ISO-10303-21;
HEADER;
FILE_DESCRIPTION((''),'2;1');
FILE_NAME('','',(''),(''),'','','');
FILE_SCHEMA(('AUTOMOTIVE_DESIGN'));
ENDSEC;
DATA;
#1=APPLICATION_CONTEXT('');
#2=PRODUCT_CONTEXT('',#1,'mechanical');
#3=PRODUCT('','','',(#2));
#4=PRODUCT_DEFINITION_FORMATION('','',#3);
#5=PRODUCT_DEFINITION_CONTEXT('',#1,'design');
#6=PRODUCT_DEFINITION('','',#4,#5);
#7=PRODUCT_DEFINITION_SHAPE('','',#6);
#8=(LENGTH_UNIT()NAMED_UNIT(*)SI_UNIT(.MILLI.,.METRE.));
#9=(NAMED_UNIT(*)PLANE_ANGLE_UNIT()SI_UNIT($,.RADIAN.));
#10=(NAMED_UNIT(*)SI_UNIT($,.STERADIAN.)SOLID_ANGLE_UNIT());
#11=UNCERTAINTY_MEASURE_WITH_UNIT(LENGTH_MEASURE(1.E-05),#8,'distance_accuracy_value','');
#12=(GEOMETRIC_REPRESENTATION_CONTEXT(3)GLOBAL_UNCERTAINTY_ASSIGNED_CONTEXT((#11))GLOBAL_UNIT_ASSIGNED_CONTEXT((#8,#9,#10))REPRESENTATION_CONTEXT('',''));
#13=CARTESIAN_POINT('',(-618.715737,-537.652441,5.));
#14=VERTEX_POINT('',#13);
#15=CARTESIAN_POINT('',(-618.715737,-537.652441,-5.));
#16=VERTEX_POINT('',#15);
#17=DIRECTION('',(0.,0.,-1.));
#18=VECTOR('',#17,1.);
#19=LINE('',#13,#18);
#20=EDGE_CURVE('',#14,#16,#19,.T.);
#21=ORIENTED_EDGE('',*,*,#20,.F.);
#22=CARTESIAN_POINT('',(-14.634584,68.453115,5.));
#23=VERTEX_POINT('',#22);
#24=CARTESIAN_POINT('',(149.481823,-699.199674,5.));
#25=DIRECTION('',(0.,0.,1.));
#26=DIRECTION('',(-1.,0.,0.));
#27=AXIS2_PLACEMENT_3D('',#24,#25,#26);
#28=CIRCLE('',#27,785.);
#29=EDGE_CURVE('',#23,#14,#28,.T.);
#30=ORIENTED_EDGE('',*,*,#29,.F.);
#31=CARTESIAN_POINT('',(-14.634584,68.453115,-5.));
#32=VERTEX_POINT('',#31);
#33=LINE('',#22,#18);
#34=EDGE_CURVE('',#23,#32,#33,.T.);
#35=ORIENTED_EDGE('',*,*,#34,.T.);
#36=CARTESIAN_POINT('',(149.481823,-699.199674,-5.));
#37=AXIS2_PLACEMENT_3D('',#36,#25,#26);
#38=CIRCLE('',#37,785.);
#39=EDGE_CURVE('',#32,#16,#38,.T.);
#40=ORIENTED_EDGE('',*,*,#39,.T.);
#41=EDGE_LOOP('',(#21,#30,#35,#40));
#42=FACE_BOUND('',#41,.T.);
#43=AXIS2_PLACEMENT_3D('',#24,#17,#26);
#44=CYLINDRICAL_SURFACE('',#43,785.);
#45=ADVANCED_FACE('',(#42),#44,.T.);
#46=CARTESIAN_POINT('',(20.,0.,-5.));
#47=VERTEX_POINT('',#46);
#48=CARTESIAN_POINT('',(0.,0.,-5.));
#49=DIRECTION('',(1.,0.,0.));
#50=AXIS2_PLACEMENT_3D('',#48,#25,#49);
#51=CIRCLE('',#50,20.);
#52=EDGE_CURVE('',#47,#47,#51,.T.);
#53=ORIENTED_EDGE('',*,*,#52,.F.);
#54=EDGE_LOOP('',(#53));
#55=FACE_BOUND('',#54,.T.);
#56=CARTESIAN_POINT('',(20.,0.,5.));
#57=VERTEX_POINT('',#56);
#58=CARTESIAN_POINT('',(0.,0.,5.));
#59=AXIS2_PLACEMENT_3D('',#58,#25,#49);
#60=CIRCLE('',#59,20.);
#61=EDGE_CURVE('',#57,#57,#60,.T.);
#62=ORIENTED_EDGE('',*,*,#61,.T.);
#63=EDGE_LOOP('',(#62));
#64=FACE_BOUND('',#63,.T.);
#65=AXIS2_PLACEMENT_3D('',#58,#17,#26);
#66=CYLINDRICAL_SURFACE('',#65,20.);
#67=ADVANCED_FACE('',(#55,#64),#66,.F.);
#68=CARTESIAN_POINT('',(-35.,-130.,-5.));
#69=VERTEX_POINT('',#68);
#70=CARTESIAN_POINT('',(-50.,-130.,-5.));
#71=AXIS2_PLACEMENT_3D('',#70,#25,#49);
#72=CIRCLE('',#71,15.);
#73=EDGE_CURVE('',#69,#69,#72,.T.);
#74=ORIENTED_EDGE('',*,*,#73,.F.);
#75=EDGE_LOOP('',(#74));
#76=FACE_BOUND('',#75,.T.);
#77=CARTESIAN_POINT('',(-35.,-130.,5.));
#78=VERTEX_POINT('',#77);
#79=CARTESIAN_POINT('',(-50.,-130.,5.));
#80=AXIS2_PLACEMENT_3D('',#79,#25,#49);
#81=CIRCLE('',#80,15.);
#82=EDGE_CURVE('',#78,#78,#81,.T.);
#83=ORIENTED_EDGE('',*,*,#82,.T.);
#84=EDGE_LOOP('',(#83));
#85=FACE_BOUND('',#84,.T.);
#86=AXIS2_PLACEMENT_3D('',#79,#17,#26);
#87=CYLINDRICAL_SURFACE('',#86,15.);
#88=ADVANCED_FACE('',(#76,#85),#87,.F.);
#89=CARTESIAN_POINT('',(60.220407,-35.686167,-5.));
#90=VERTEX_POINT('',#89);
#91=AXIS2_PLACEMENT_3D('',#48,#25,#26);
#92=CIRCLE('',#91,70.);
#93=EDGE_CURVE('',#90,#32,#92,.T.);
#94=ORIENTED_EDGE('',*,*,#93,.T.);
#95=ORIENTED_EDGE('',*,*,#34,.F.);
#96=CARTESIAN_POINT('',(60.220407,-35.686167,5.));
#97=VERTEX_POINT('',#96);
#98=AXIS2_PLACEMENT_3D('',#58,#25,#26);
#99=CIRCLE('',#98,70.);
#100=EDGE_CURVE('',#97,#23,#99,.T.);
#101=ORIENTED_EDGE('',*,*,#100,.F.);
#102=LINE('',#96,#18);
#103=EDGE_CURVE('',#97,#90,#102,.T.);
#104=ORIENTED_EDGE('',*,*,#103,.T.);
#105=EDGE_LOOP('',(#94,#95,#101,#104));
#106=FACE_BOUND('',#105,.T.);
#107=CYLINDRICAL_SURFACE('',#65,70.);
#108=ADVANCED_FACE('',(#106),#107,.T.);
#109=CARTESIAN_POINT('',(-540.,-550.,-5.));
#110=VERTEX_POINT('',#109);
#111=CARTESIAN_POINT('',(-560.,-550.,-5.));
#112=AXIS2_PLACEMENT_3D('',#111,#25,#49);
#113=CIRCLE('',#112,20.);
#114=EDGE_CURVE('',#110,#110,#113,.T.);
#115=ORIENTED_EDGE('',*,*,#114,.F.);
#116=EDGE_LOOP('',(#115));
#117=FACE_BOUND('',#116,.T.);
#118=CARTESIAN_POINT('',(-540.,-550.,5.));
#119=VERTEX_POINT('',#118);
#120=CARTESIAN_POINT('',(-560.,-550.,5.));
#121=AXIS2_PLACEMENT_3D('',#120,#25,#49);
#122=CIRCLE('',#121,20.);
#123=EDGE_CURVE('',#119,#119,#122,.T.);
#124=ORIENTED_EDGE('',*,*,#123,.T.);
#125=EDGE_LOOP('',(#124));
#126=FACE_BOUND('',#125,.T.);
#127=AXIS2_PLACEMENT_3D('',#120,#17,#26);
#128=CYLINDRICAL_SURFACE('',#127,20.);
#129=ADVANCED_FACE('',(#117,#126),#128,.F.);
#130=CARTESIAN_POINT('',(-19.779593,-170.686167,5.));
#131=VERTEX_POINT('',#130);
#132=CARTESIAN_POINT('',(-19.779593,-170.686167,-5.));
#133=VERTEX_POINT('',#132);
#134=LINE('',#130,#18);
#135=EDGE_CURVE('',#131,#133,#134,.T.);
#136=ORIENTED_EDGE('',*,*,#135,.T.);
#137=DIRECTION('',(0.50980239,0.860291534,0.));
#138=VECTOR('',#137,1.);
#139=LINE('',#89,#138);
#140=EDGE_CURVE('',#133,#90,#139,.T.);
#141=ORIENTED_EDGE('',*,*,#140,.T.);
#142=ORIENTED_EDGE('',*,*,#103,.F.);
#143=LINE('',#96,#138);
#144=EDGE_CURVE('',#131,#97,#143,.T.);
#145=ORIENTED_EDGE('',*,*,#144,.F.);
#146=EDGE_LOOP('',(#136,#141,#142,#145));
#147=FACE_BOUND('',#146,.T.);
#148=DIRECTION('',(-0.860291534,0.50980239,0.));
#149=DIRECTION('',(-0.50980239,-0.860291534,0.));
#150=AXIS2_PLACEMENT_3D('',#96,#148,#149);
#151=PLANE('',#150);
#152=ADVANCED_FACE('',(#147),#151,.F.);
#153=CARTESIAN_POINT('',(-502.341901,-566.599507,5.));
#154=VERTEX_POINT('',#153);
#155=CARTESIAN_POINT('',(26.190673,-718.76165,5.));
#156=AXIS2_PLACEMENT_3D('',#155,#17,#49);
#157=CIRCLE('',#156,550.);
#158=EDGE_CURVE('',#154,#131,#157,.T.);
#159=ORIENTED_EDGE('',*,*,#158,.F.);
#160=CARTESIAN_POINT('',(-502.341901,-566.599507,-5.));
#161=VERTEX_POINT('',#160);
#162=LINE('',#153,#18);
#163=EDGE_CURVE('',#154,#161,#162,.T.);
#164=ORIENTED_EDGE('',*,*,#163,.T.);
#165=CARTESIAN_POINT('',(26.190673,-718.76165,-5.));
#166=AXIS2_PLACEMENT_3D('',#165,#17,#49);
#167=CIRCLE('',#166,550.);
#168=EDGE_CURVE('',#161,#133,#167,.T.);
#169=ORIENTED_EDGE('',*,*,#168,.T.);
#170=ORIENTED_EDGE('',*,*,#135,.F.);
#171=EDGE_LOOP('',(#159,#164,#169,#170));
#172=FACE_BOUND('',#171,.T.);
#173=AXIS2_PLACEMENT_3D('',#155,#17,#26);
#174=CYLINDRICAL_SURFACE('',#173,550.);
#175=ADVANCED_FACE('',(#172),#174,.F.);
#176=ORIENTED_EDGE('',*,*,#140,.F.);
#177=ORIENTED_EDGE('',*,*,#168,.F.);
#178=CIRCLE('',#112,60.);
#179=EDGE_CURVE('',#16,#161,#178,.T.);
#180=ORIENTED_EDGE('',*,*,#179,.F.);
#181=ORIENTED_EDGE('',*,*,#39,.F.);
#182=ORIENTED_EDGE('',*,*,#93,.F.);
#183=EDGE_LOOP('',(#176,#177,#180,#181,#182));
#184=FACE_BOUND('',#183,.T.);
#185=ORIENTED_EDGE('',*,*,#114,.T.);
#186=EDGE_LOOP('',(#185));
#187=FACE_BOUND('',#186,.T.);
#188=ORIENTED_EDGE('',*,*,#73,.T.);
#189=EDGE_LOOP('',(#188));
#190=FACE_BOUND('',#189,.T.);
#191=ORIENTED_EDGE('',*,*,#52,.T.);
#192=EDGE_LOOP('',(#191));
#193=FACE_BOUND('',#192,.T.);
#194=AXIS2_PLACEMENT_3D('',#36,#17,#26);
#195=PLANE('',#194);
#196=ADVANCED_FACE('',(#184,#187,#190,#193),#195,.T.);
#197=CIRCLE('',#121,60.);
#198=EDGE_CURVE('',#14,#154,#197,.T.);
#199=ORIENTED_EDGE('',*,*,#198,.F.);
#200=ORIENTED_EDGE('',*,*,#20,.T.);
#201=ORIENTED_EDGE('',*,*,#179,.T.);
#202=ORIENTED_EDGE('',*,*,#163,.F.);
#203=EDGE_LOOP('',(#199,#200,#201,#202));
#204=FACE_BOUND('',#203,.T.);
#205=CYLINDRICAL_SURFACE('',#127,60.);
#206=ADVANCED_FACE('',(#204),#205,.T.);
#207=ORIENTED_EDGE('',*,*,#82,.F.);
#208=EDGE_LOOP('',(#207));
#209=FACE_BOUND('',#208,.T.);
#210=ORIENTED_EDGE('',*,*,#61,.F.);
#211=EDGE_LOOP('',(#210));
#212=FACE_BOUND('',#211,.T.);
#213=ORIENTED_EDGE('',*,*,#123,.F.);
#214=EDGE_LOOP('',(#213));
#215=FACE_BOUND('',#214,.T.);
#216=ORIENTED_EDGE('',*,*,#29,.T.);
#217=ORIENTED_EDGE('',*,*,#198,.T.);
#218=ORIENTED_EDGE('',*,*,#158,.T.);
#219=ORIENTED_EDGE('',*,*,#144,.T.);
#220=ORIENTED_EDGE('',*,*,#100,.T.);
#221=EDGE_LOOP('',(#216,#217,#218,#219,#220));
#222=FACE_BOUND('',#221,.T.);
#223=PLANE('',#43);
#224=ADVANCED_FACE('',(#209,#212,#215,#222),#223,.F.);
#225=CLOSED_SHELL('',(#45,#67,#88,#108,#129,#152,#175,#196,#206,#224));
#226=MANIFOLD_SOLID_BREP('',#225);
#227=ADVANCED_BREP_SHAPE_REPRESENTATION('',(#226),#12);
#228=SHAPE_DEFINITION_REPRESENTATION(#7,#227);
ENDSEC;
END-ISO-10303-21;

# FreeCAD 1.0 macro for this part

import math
import FreeCAD as App
import Part
import Sketcher

doc = App.newDocument("Part")
params = doc.addObject("Spreadsheet::Sheet", "Params")
for row, (alias, value) in enumerate([
    ("sketch1_diameter", "40 mm"),
    ("sketch1_diameter2", "30 mm"),
    ("sketch1_radius", "70 mm"),
    ("sketch1_radius2", "785 mm"),
    ("sketch1_radius3", "60 mm"),
    ("pad1_length", "10 mm"),
], start=1):
    params.set(f"A{row}", alias)
    params.set(f"B{row}", "=" + value)
    params.setAlias(f"B{row}", alias)

body = doc.addObject("PartDesign::Body", "Body")

# Sketch on XY plane
sketch1 = body.newObject("Sketcher::SketchObject", "Sketch")
sketch1.AttachmentSupport = (doc.getObject("XY_Plane"), [""])
sketch1.MapMode = "FlatFace"
sketch1.addGeometry([
    Part.LineSegment(App.Vector(-20, -171, 0), App.Vector(60, -36, 0)),  # 0
    Part.ArcOfCircle(Part.Circle(App.Vector(0, 0, 0), App.Vector(0, 0, 1), 70), math.radians(-31), math.radians(102)),  # 1
    Part.ArcOfCircle(Part.Circle(App.Vector(149, -699, 0), App.Vector(0, 0, 1), 785), math.radians(102), math.radians(168)),  # 2
    Part.ArcOfCircle(Part.Circle(App.Vector(-560, -550, 0), App.Vector(0, 0, 1), 60), math.radians(168), math.radians(344)),  # 3
    Part.ArcOfCircle(Part.Circle(App.Vector(26, -719, 0), App.Vector(0, 0, 1), 550), math.radians(95), math.radians(164)),  # 4
    Part.Circle(App.Vector(-560, -550, 0), App.Vector(0, 0, 1), 20),  # 5
    Part.Circle(App.Vector(-50, -130, 0), App.Vector(0, 0, 1), 15),  # 6
    Part.Circle(App.Vector(0, 0, 0), App.Vector(0, 0, 1), 20),  # 7
], False)
sketch1.addConstraint([
    Sketcher.Constraint("Tangent", 0, 2, 1, 1),
    Sketcher.Constraint("Tangent", 1, 2, 2, 1),
    Sketcher.Constraint("Tangent", 2, 2, 3, 1),
    Sketcher.Constraint("Tangent", 3, 2, 4, 2),
    Sketcher.Constraint("Coincident", 4, 1, 0, 1),
    Sketcher.Constraint("Coincident", 1, 3, -1, 1),
    Sketcher.Constraint("Coincident", 7, 3, -1, 1),
    Sketcher.Constraint("Coincident", 5, 3, 3, 3),
    Sketcher.Constraint("Equal", 5, 7),
    Sketcher.Constraint("Diameter", 5, 40.0),
    Sketcher.Constraint("Diameter", 6, 30.0),
    Sketcher.Constraint("Radius", 1, 70.0),
    Sketcher.Constraint("Radius", 2, 785.0),
    Sketcher.Constraint("Radius", 3, 60.0),
    Sketcher.Constraint("Radius", 4, 550.0),
    Sketcher.Constraint("DistanceX", 3, 3, -1, 1, 560.0),
    Sketcher.Constraint("DistanceY", 3, 3, -1, 1, 550.0),
    Sketcher.Constraint("DistanceX", 6, 3, -1, 1, 50.0),
    Sketcher.Constraint("DistanceY", 6, 3, -1, 1, 130.0),
    Sketcher.Constraint("DistanceY", 4, 1, 0, 2, 135.0),
    Sketcher.Constraint("Distance", 0, 156.923548),
])
sketch1.setExpression("Constraints[9]", "Params.sketch1_diameter")
sketch1.setExpression("Constraints[10]", "Params.sketch1_diameter2")
sketch1.setExpression("Constraints[11]", "Params.sketch1_radius")
sketch1.setExpression("Constraints[12]", "Params.sketch1_radius2")
sketch1.setExpression("Constraints[13]", "Params.sketch1_radius3")
pad1 = body.newObject("PartDesign::Pad", "Pad")
pad1.Profile = sketch1
pad1.setExpression("Length", "Params.pad1_length")
pad1.Midplane = True

doc.recompute()
